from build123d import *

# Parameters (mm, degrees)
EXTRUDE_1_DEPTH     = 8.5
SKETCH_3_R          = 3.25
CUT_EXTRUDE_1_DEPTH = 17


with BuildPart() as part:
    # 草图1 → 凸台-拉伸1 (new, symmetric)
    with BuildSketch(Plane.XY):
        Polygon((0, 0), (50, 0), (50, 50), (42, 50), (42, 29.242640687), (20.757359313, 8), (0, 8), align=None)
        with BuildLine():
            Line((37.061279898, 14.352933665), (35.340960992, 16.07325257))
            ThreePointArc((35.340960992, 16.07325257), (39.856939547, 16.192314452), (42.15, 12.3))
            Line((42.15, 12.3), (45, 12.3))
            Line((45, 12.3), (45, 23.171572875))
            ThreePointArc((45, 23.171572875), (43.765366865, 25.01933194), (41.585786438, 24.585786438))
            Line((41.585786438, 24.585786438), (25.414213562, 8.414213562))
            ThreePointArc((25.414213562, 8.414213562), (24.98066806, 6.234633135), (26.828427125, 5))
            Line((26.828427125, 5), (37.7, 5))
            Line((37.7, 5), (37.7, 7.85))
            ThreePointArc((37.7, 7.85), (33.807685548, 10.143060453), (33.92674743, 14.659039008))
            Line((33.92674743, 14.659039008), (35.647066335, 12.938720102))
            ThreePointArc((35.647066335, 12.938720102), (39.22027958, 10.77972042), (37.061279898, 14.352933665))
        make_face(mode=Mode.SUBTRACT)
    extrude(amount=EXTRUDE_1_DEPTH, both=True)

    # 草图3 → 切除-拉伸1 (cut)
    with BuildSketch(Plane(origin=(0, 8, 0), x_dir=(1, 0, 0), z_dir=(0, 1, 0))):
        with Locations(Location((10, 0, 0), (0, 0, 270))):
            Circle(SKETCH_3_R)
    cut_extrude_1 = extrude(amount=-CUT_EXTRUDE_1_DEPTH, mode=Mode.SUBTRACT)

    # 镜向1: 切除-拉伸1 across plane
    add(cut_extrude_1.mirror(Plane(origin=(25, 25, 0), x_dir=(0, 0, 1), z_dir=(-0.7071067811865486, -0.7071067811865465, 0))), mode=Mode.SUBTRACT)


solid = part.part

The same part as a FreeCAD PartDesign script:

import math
import FreeCAD as App
import Part
import Sketcher
from FreeCAD import Vector


def add_polygon(sketch, points):
    """Adds a closed chain of lines whose ends are joined by coincident constraints."""
    first, n = sketch.GeometryCount, len(points)
    for a, b in zip(points, points[1:] + points[:1]):
        sketch.addGeometry(Part.LineSegment(App.Vector(*a, 0), App.Vector(*b, 0)), False)
    for i in range(n):
        sketch.addConstraint(Sketcher.Constraint("Coincident", first + i, 2, first + (i + 1) % n, 1))

doc = App.newDocument("Part")
params = doc.addObject("Spreadsheet::Sheet", "Params")
for row, (alias, value) in enumerate([
    ("sketch1_radius", "2 mm"),
    ("sketch1_width", "50 mm"),
    ("sketch1_width2", "8 mm"),
    ("sketch1_radius2", "2.15 mm"),
    ("sketch1_radius3", "4.45 mm"),
    ("pad1_length", "17 mm"),
    ("sketch2_diameter", "6.5 mm"),
    ("pocket1_length", "17 mm"),
], start=1):
    params.set(f"A{row}", alias)
    params.set(f"B{row}", "=" + value)
    params.setAlias(f"B{row}", alias)

body = doc.addObject("PartDesign::Body", "Body")

sketch1 = body.newObject("Sketcher::SketchObject", "Sketch")
sketch1.AttachmentSupport = (doc.getObject("XY_Plane"), [""])
sketch1.MapMode = "FlatFace"
add_polygon(sketch1, [(0, 0), (50, 0), (50, 50), (42, 50), (42, 29.242641), (20.757359, 8), (0, 8)])
sketch1.addGeometry(Part.LineSegment(Vector(35.340961, 16.073253, 0), Vector(37.06128, 14.352934, 0)), False)
sketch1.addGeometry(Part.ArcOfCircle(Part.Circle(Vector(37.7, 12.3, 0), Vector(0, 0, 1), 2.15), math.radians(162.717748), math.radians(467.282252)), False)
sketch1.addGeometry(Part.LineSegment(Vector(35.647066, 12.93872, 0), Vector(33.926747, 14.659039, 0)), False)
sketch1.addGeometry(Part.ArcOfCircle(Part.Circle(Vector(37.7, 12.3, 0), Vector(0, 0, 1), 4.45), math.radians(147.986361), math.radians(270)), False)
sketch1.addGeometry(Part.LineSegment(Vector(37.7, 7.85, 0), Vector(37.7, 5, 0)), False)
sketch1.addGeometry(Part.LineSegment(Vector(37.7, 5, 0), Vector(26.828427, 5, 0)), False)
sketch1.addGeometry(Part.ArcOfCircle(Part.Circle(Vector(26.828427, 7, 0), Vector(0, 0, 1), 2), math.radians(135), math.radians(270)), False)
sketch1.addGeometry(Part.LineSegment(Vector(25.414214, 8.414214, 0), Vector(41.585786, 24.585786, 0)), False)
sketch1.addGeometry(Part.ArcOfCircle(Part.Circle(Vector(43, 23.171573, 0), Vector(0, 0, 1), 2), math.radians(0), math.radians(135)), False)
sketch1.addGeometry(Part.LineSegment(Vector(45, 23.171573, 0), Vector(45, 12.3, 0)), False)
sketch1.addGeometry(Part.LineSegment(Vector(45, 12.3, 0), Vector(42.15, 12.3, 0)), False)
sketch1.addGeometry(Part.ArcOfCircle(Part.Circle(Vector(37.7, 12.3, 0), Vector(0, 0, 1), 4.45), math.radians(0), math.radians(122.013639)), False)
sketch1.addConstraint([
    Sketcher.Constraint("Coincident", 7, 2, 8, 2),
    Sketcher.Constraint("Coincident", 8, 1, 9, 1),
    Sketcher.Constraint("Coincident", 9, 2, 10, 1),
    Sketcher.Constraint("Coincident", 10, 2, 11, 1),
    Sketcher.Constraint("Coincident", 11, 2, 12, 1),
    Sketcher.Constraint("Tangent", 12, 2, 13, 2),
    Sketcher.Constraint("Tangent", 13, 1, 14, 1),
    Sketcher.Constraint("Tangent", 14, 2, 15, 2),
    Sketcher.Constraint("Tangent", 15, 1, 16, 1),
    Sketcher.Constraint("Coincident", 16, 2, 17, 1),
    Sketcher.Constraint("Coincident", 17, 2, 18, 1),
    Sketcher.Constraint("Coincident", 18, 2, 7, 1),
    Sketcher.Constraint("Horizontal", 0),
    Sketcher.Constraint("Vertical", 1),
    Sketcher.Constraint("Horizontal", 2),
    Sketcher.Constraint("Vertical", 3),
    Sketcher.Constraint("Horizontal", 5),
    Sketcher.Constraint("Vertical", 6),
    Sketcher.Constraint("Vertical", 11),
    Sketcher.Constraint("Horizontal", 12),
    Sketcher.Constraint("Vertical", 16),
    Sketcher.Constraint("Horizontal", 17),
    Sketcher.Constraint("Coincident", 6, 2, -1, 1),
    Sketcher.Constraint("Coincident", 10, 3, 8, 3),
    Sketcher.Constraint("Coincident", 18, 3, 8, 3),
    Sketcher.Constraint("Equal", 13, 15),
    Sketcher.Constraint("Equal", 10, 18),
    Sketcher.Constraint("Perpendicular", 4, 7),
    Sketcher.Constraint("Parallel", 7, 9),
    Sketcher.Constraint("Perpendicular", 9, 14),
    Sketcher.Constraint("Horizontal", 18, 3, 16, 2),
    Sketcher.Constraint("Vertical", 18, 3, 10, 2),
    Sketcher.Constraint("Equal", 0, 1),
    Sketcher.Constraint("Equal", 5, 3),
    Sketcher.Constraint("Equal", 2, 6),
    Sketcher.Constraint("Equal", 17, 11),
    Sketcher.Constraint("Equal", 7, 9),
    Sketcher.Constraint("Radius", 13, 2.0),
    Sketcher.Constraint("DistanceX", 0, 1, 0, 2, 50.0),
    Sketcher.Constraint("DistanceX", 2, 2, 2, 1, 8.0),
    Sketcher.Constraint("Radius", 8, 2.15),
    Sketcher.Constraint("Radius", 10, 4.45),
    Sketcher.Constraint("DistanceY", -1, 1, 13, 3, 7.0),
    Sketcher.Constraint("DistanceX", -1, 1, 15, 3, 43.0),
    Sketcher.Constraint("DistanceX", 17, 2, 17, 1, 2.85),
    Sketcher.Constraint("Distance", 7, 2.432898),
    Sketcher.Constraint("DistanceX", 5, 2, 5, 1, 20.757359),
    Sketcher.Constraint("DistanceX", 12, 2, 12, 1, 10.871573),
])
sketch1.setExpression("Constraints[44]", "Params.sketch1_radius")
sketch1.setExpression("Constraints[45]", "Params.sketch1_width")
sketch1.setExpression("Constraints[46]", "Params.sketch1_width2")
sketch1.setExpression("Constraints[47]", "Params.sketch1_radius2")
sketch1.setExpression("Constraints[48]", "Params.sketch1_radius3")
pad1 = body.newObject("PartDesign::Pad", "Pad")
pad1.Profile = sketch1
pad1.setExpression("Length", "Params.pad1_length")
pad1.Midplane = True

sketch2 = body.newObject("Sketcher::SketchObject", "Sketch001")
sketch2.AttachmentSupport = (doc.getObject("XZ_Plane"), [""])
sketch2.MapMode = "FlatFace"
sketch2.AttachmentOffset = App.Placement(Vector(0, 0, -8), App.Rotation())
sketch2.addGeometry(Part.Circle(Vector(10, 0, 0), Vector(0, 0, 1), 3.25), False)
sketch2.addConstraint([
    Sketcher.Constraint("PointOnObject", 0, 3, -1),
    Sketcher.Constraint("Diameter", 0, 6.5),
    Sketcher.Constraint("DistanceX", -1, 1, 0, 3, 10.0),
])
sketch2.setExpression("Constraints[1]", "Params.sketch2_diameter")
pocket1 = body.newObject("PartDesign::Pocket", "Pocket")
pocket1.Profile = sketch2
pocket1.setExpression("Length", "Params.pocket1_length")
pocket1.Reversed = True
doc.recompute()

datumplane = body.newObject("PartDesign::Plane", "DatumPlane")
datumplane.Placement = App.Placement(Vector(25, 25, 0), App.Rotation(Vector(-0.707106781, 0.707106781, 0), Vector(0, 0, -1), Vector(-0.707106781, -0.707106781, 0), "ZXY"))
mirrored = body.newObject("PartDesign::Mirrored", "Mirrored")
mirrored.Originals = [pocket1]
mirrored.MirrorPlane = (datumplane, [""])
body.Tip = mirrored

doc.recompute()
